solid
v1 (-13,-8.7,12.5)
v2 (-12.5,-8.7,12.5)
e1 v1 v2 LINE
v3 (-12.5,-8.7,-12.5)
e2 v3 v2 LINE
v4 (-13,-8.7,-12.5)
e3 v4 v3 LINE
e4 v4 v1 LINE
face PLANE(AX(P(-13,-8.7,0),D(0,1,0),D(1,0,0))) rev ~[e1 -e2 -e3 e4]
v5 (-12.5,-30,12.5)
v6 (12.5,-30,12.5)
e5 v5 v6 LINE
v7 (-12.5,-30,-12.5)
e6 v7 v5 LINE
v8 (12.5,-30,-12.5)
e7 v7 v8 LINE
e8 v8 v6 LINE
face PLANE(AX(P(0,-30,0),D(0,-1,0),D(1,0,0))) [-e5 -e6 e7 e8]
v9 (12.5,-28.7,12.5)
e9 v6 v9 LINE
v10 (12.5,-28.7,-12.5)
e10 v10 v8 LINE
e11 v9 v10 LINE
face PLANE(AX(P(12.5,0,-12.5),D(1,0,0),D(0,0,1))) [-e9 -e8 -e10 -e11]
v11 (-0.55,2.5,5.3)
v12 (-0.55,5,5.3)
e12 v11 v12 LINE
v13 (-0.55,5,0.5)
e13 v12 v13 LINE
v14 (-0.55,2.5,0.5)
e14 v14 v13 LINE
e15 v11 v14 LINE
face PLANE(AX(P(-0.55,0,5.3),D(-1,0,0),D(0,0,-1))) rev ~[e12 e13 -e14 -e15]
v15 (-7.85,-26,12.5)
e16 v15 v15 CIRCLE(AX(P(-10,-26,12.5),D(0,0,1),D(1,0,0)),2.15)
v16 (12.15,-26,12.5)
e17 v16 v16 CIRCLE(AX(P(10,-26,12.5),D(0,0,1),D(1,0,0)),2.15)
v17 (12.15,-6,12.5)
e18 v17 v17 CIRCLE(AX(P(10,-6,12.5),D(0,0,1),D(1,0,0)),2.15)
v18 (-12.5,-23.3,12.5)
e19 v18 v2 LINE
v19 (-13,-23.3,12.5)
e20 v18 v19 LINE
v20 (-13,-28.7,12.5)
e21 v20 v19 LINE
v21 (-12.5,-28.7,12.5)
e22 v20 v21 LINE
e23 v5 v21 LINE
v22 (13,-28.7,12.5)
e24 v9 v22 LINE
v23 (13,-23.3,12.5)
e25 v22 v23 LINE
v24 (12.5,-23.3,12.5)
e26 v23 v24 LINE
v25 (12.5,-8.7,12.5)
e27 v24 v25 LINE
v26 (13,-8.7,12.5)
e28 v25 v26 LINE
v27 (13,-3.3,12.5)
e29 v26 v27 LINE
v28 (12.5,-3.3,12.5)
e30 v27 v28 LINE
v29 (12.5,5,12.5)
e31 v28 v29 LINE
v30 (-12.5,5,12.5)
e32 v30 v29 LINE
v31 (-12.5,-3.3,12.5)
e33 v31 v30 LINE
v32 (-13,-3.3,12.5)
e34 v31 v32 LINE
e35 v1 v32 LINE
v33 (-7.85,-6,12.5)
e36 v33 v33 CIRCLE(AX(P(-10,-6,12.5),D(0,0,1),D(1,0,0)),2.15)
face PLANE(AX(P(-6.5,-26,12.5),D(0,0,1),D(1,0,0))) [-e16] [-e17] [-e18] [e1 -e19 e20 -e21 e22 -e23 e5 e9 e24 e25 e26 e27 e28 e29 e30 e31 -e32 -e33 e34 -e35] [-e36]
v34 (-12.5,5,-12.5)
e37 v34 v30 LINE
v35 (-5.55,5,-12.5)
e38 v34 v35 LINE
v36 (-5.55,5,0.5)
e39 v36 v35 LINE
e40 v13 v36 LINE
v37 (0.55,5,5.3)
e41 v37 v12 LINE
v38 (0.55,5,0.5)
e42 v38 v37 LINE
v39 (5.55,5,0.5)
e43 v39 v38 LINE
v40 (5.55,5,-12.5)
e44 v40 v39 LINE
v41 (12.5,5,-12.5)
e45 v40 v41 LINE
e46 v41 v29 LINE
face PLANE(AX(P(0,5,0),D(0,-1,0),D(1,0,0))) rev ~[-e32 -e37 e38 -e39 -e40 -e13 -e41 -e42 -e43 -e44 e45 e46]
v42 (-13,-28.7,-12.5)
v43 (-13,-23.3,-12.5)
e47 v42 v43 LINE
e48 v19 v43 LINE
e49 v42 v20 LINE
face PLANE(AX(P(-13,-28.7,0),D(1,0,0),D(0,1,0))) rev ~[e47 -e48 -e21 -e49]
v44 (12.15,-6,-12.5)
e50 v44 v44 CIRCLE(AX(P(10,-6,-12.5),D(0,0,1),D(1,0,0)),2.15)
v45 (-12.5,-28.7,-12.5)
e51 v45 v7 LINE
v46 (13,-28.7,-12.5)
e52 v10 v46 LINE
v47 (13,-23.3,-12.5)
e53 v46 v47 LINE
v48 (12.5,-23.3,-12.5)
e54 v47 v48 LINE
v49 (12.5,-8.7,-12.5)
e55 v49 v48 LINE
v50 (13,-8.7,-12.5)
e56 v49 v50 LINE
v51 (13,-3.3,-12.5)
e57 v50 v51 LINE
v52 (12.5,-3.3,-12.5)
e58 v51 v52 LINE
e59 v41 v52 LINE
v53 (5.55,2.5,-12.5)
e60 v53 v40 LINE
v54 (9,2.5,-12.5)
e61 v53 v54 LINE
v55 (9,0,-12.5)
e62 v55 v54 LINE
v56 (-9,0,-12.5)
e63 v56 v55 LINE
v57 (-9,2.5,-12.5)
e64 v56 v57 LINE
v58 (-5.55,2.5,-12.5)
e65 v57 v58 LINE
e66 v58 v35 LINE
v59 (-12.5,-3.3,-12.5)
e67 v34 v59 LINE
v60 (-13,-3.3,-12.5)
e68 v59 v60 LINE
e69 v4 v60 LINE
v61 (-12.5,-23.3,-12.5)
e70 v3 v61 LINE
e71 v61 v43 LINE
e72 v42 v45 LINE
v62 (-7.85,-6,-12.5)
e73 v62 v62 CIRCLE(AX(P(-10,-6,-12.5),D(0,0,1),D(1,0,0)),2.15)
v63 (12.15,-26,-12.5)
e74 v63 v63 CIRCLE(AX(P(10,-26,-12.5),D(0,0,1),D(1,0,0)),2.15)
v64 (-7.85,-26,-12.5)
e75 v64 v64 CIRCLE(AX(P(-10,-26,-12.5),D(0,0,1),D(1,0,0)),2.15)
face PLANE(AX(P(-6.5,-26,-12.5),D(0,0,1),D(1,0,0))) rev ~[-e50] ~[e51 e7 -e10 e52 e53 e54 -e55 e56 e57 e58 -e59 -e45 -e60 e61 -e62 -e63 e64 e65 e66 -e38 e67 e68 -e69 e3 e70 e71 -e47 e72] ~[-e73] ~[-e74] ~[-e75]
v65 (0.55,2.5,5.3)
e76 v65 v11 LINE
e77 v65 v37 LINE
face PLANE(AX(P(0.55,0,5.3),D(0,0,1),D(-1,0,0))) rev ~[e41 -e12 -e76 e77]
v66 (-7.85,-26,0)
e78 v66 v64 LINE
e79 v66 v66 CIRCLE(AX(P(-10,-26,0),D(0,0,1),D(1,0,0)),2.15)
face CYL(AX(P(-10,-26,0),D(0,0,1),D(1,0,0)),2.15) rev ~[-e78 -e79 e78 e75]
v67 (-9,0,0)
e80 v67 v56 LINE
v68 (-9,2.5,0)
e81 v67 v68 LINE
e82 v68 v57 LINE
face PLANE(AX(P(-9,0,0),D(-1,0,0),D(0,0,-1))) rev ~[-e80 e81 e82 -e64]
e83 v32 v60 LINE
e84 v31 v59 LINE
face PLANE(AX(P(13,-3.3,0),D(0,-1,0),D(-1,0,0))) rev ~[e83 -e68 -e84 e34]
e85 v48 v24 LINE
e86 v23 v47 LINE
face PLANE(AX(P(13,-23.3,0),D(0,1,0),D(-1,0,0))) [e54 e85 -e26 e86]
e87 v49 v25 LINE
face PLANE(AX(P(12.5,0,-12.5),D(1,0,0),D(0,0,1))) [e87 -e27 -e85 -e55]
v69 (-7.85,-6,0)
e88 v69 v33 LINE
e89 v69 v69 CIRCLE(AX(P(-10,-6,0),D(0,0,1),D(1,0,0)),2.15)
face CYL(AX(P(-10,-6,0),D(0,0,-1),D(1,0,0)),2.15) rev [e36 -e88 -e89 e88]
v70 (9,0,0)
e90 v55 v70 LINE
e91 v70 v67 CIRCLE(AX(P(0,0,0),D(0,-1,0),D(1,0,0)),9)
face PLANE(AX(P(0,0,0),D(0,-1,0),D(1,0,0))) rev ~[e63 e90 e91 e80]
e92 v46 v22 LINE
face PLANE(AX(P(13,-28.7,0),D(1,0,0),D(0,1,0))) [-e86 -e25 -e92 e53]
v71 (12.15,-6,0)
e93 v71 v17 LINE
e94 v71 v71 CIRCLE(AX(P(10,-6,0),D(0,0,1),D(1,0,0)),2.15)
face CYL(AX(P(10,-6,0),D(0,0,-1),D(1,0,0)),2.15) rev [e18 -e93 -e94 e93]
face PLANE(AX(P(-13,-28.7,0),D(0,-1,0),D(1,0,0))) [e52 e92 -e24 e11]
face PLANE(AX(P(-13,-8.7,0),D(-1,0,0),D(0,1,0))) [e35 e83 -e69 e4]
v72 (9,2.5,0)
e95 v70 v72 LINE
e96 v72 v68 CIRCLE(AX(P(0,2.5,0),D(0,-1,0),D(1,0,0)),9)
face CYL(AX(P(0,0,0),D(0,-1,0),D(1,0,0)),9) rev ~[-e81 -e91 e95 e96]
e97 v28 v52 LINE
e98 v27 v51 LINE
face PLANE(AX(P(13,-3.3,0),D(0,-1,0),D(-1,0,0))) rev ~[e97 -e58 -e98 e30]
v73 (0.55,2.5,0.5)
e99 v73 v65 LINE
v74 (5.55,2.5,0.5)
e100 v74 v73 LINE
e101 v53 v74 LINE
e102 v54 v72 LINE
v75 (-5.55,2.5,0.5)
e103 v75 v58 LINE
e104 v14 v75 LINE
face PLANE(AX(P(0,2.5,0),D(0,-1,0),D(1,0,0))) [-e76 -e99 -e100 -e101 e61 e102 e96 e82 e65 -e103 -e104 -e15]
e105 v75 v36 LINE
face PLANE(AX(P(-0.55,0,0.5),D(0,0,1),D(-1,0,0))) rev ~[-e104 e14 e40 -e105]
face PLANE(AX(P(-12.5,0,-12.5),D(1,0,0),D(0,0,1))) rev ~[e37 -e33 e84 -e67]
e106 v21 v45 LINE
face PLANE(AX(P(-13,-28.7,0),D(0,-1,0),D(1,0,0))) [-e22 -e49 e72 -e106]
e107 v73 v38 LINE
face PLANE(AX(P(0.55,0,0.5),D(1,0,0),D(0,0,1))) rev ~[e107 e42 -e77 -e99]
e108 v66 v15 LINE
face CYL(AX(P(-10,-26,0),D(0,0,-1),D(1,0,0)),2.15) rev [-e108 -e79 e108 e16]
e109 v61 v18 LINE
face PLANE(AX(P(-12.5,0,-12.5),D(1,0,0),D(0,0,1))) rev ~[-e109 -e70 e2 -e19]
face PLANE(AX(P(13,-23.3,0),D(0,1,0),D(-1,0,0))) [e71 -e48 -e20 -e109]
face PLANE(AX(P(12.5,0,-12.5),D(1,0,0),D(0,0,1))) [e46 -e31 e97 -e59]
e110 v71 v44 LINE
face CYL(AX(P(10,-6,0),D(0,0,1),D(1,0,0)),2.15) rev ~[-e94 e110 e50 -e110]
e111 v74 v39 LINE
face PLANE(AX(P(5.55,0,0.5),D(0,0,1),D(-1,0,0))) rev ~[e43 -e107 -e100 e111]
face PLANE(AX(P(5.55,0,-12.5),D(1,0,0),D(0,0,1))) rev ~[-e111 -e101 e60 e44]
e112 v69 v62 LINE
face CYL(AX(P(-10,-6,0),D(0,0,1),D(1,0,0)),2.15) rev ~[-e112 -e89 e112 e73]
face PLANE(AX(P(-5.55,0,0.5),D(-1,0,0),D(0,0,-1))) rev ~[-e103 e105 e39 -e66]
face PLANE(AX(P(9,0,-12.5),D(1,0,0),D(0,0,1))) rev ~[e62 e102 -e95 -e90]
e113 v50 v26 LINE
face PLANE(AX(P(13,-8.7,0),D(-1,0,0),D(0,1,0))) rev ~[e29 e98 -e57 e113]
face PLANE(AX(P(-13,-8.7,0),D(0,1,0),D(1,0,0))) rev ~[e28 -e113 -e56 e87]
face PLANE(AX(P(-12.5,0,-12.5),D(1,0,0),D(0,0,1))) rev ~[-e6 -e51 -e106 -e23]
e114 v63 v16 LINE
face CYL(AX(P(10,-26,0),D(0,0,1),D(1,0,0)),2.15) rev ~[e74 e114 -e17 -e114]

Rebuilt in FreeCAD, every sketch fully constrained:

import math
import FreeCAD as App
import Part
import Sketcher

V = App.Vector
Q = App.Units.Quantity


def add_polygon(sketch, points):
    """Adds a closed chain of lines whose ends are joined by coincident constraints."""
    first, n = sketch.GeometryCount, len(points)
    for a, b in zip(points, points[1:] + points[:1]):
        sketch.addGeometry(Part.LineSegment(App.Vector(*a, 0), App.Vector(*b, 0)), False)
    for i in range(n):
        sketch.addConstraint(Sketcher.Constraint("Coincident", first + i, 2, first + (i + 1) % n, 1))

doc = App.newDocument("Part")
body = doc.addObject("PartDesign::Body", "Body")

# Sketch on XZ plane
sketch1 = body.newObject("Sketcher::SketchObject", "Sketch")
sketch1.AttachmentSupport = (doc.getObject("XZ_Plane"), [""])
sketch1.MapMode = "FlatFace"
add_polygon(sketch1, [(-12, 12), (-12, -12), (12, -12), (12, 12)])  # lines 0-3
sketch1.addConstraint([
    Sketcher.Constraint("Vertical", 0),
    Sketcher.Constraint("Horizontal", 1),
    Sketcher.Constraint("Vertical", 2),
    Sketcher.Constraint("Horizontal", 3),
    Sketcher.Constraint("Symmetric", 0, 2, 2, 2, -1, 1),
    Sketcher.Constraint("Equal", 3, 0),
    Sketcher.Constraint("DistanceX", 1, 1, 1, 2, Q("25 mm")),
])
pad1 = body.newObject("PartDesign::Pad", "Pad")
pad1.Profile = sketch1
pad1.Length = 30

# Sketch on XZ plane
sketch2 = body.newObject("Sketcher::SketchObject", "Sketch001")
sketch2.AttachmentSupport = (doc.getObject("XZ_Plane"), [""])
sketch2.MapMode = "FlatFace"
add_polygon(sketch2, [(-12, 12), (-12, -12), (12, -12), (12, 12)])  # lines 0-3
sketch2.addConstraint([
    Sketcher.Constraint("Vertical", 0),
    Sketcher.Constraint("Horizontal", 1),
    Sketcher.Constraint("Vertical", 2),
    Sketcher.Constraint("Horizontal", 3),
    Sketcher.Constraint("Symmetric", 0, 2, 2, 2, -1, 1),
    Sketcher.Constraint("Equal", 3, 0),
    Sketcher.Constraint("DistanceX", 1, 1, 1, 2, Q("25 mm")),
])
pad2 = body.newObject("PartDesign::Pad", "Pad001")
pad2.Profile = sketch2
pad2.Length = 5
pad2.Reversed = True

# Sketch on XZ plane
sketch3 = body.newObject("Sketcher::SketchObject", "Sketch002")
sketch3.AttachmentSupport = (doc.getObject("XZ_Plane"), [""])
sketch3.MapMode = "FlatFace"
sketch3.addGeometry([
    Part.ArcOfCircle(Part.Circle(V(0, 0, 0), V(0, 0, 1), 9), math.radians(0), math.radians(180)),
    Part.LineSegment(V(-9, 0, 0), V(-9, -12, 0)),
    Part.LineSegment(V(-9, -12, 0), V(9, -12, 0)),
    Part.LineSegment(V(9, -12, 0), V(9, 0, 0)),
], False)
sketch3.addConstraint([
    Sketcher.Constraint("Tangent", 0, 2, 1, 1),
    Sketcher.Constraint("Coincident", 1, 2, 2, 1),
    Sketcher.Constraint("Coincident", 2, 2, 3, 1),
    Sketcher.Constraint("Tangent", 3, 2, 0, 1),
    Sketcher.Constraint("Vertical", 1),
    Sketcher.Constraint("Horizontal", 2),
    Sketcher.Constraint("Vertical", 3),
    Sketcher.Constraint("Coincident", 0, 3, -1, 1),
    Sketcher.Constraint("Radius", 0, Q("9 mm")),
    Sketcher.Constraint("DistanceY", 1, 2, 1, 1, Q("12.5 mm")),
])
pocket1 = body.newObject("PartDesign::Pocket", "Pocket")
pocket1.Profile = sketch3
pocket1.Length = 2.5

# Sketch on XZ plane
sketch4 = body.newObject("Sketcher::SketchObject", "Sketch003")
sketch4.AttachmentSupport = (doc.getObject("XZ_Plane"), [""])
sketch4.MapMode = "FlatFace"
add_polygon(sketch4, [(0.6, 0.5), (0.6, 5.3), (-0.6, 5.3), (-0.6, 0.5), (-5.5, 0.5), (-5.5, -12.5), (5.5, -12.5), (5.5, 0.5)])  # lines 0-7
sketch4.addConstraint([
    Sketcher.Constraint("Vertical", 0),
    Sketcher.Constraint("Horizontal", 1),
    Sketcher.Constraint("Vertical", 2),
    Sketcher.Constraint("Horizontal", 3),
    Sketcher.Constraint("Vertical", 4),
    Sketcher.Constraint("Horizontal", 5),
    Sketcher.Constraint("Vertical", 6),
    Sketcher.Constraint("Horizontal", 7),
    Sketcher.Constraint("Symmetric", 3, 2, 6, 2, -2),
    Sketcher.Constraint("Equal", 3, 7),
    Sketcher.Constraint("DistanceX", 3, 2, 3, 1, Q("5 mm")),
    Sketcher.Constraint("DistanceY", 4, 2, 4, 1, Q("13 mm")),
    Sketcher.Constraint("DistanceX", 1, 2, 1, 1, Q("1.1 mm")),
    Sketcher.Constraint("DistanceY", 0, 1, 0, 2, Q("4.8 mm")),
    Sketcher.Constraint("DistanceY", -1, 1, 0, 2, Q("5.3 mm")),
])
pocket2 = body.newObject("PartDesign::Pocket", "Pocket001")
pocket2.Profile = sketch4
pocket2.Length = 25

# Sketch on XY plane
sketch5 = body.newObject("Sketcher::SketchObject", "Sketch004")
sketch5.AttachmentSupport = (doc.getObject("XY_Plane"), [""])
sketch5.MapMode = "FlatFace"
add_polygon(sketch5, [(-13, -3), (-13, -9), (13, -9), (13, -3)])  # lines 0-3
add_polygon(sketch5, [(-13, -23), (-13, -29), (13, -29), (13, -23)])  # lines 4-7
sketch5.addConstraint([
    Sketcher.Constraint("Vertical", 0),
    Sketcher.Constraint("Horizontal", 1),
    Sketcher.Constraint("Vertical", 2),
    Sketcher.Constraint("Horizontal", 3),
    Sketcher.Constraint("Vertical", 4),
    Sketcher.Constraint("Horizontal", 5),
    Sketcher.Constraint("Vertical", 6),
    Sketcher.Constraint("Horizontal", 7),
    Sketcher.Constraint("Vertical", 3, 2, 4, 2),
    Sketcher.Constraint("Vertical", 2, 2, 5, 2),
    Sketcher.Constraint("Equal", 2, 4),
    Sketcher.Constraint("DistanceX", 1, 1, 1, 2, Q("26 mm")),
    Sketcher.Constraint("DistanceY", 0, 2, 0, 1, Q("5.4 mm")),
    Sketcher.Constraint("DistanceX", 0, 2, -1, 1, Q("13 mm")),
    Sketcher.Constraint("DistanceY", 4, 2, 0, 2, Q("20 mm")),
    Sketcher.Constraint("DistanceY", 0, 2, -1, 1, Q("8.7 mm")),
])
pad3 = body.newObject("PartDesign::Pad", "Pad002")
pad3.Profile = sketch5
pad3.Length = 25
pad3.Midplane = True

# Sketch on XY plane
sketch6 = body.newObject("Sketcher::SketchObject", "Sketch005")
sketch6.AttachmentSupport = (doc.getObject("XY_Plane"), [""])
sketch6.MapMode = "FlatFace"
sketch6.addGeometry([
    Part.Circle(V(-10, -6, 0), V(0, 0, 1), 2.1),
    Part.Circle(V(-10, -26, 0), V(0, 0, 1), 2.1),
    Part.Circle(V(10, -6, 0), V(0, 0, 1), 2.1),
    Part.Circle(V(10, -26, 0), V(0, 0, 1), 2.1),
], False)
sketch6.addConstraint([
    Sketcher.Constraint("Equal", 0, 1),
    Sketcher.Constraint("Equal", 1, 2),
    Sketcher.Constraint("Equal", 2, 3),
    Sketcher.Constraint("Symmetric", 0, 3, 2, 3, -2),
    Sketcher.Constraint("Symmetric", 1, 3, 3, 3, -2),
    Sketcher.Constraint("Vertical", 0, 3, 1, 3),
    Sketcher.Constraint("Diameter", 0, Q("4.3 mm")),
    Sketcher.Constraint("DistanceX", 0, 3, -1, 1, Q("10 mm")),
    Sketcher.Constraint("DistanceY", 0, 3, -1, 1, Q("6 mm")),
    Sketcher.Constraint("DistanceY", 1, 3, -1, 1, Q("26 mm")),
])
pocket3 = body.newObject("PartDesign::Pocket", "Pocket002")
pocket3.Profile = sketch6
pocket3.Length = 25
pocket3.Midplane = True

doc.recompute()
